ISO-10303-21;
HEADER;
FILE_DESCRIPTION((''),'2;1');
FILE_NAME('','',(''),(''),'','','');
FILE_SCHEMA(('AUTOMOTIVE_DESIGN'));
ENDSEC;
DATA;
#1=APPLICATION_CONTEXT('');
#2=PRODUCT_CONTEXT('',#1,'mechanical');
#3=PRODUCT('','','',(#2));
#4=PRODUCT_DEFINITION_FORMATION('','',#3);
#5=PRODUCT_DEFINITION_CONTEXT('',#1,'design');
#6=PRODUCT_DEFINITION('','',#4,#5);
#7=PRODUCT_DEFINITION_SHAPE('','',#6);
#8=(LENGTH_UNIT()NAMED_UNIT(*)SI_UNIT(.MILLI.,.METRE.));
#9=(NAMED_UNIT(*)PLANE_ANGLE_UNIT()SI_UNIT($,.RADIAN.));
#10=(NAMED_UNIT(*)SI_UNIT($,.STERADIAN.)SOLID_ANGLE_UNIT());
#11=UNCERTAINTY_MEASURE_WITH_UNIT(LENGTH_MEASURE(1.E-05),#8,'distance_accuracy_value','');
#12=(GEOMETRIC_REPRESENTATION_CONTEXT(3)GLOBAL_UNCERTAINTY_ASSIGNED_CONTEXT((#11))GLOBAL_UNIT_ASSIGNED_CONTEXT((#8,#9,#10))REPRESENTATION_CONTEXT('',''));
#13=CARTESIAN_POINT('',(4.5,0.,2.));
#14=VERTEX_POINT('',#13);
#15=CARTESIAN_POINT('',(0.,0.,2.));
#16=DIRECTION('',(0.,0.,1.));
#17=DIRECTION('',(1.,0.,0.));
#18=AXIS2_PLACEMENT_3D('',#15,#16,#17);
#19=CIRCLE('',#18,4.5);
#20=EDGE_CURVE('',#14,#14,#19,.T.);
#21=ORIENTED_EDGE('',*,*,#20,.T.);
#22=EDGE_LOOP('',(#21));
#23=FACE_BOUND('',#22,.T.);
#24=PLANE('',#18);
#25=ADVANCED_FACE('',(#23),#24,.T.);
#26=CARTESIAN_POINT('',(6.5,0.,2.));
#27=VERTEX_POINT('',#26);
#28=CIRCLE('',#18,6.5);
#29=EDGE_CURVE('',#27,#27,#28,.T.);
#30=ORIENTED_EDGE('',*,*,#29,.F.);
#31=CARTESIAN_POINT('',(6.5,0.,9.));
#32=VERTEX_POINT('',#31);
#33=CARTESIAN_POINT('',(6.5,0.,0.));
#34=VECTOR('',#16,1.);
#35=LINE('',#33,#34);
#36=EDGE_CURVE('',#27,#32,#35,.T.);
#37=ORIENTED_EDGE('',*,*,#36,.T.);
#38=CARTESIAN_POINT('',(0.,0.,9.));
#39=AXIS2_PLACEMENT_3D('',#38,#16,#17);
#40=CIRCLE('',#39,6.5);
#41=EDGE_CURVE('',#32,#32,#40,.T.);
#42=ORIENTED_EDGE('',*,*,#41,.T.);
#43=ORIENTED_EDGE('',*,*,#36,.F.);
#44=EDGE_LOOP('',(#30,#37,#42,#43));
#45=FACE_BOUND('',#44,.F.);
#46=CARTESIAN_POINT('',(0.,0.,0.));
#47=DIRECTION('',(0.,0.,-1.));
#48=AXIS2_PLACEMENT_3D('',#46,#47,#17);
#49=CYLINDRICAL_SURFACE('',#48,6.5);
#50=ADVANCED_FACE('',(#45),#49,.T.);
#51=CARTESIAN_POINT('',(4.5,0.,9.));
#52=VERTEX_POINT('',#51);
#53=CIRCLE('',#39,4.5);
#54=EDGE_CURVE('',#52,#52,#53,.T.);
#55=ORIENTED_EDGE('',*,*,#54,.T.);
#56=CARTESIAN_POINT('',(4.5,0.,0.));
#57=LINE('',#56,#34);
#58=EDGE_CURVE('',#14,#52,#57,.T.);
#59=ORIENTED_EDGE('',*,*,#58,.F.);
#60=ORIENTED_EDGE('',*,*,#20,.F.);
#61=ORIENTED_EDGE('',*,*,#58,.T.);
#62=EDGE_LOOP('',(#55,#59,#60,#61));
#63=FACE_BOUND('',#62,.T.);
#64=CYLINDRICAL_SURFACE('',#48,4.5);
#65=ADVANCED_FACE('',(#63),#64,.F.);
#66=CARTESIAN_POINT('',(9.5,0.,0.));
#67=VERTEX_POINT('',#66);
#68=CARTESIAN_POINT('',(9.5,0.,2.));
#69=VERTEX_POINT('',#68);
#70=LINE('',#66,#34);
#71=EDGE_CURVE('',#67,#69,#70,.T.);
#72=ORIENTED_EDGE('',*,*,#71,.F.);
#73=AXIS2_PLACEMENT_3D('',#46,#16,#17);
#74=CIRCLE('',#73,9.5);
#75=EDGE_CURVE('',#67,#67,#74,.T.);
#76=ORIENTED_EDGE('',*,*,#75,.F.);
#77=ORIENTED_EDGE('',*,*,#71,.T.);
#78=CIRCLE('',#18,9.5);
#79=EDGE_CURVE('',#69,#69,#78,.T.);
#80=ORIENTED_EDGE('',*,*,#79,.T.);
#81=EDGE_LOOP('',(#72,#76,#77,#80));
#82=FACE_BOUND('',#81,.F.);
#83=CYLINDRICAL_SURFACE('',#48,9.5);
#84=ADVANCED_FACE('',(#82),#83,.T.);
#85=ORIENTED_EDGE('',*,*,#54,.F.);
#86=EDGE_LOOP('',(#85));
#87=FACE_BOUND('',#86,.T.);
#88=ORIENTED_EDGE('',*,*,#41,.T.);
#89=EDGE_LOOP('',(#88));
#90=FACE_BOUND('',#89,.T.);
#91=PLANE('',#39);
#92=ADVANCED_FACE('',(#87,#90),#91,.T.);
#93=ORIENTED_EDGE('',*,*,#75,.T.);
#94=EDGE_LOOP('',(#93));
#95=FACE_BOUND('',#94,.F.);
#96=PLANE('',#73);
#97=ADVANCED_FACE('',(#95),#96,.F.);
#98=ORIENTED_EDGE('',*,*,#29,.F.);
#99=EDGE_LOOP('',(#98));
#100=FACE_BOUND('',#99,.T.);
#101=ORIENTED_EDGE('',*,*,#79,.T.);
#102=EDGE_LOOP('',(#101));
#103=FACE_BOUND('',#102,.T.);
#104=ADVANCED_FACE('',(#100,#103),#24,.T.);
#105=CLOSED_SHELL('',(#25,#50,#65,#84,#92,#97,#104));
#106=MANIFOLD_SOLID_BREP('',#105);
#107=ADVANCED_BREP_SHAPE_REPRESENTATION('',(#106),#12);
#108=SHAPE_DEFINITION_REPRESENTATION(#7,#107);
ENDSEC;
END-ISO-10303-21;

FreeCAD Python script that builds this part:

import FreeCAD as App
import Part
import Sketcher
from FreeCAD import Vector

doc = App.newDocument("Part")
body = doc.addObject("PartDesign::Body", "Body")

# Sketch on XY plane
sketch1 = body.newObject("Sketcher::SketchObject", "Sketch")
sketch1.AttachmentSupport = (doc.getObject("XY_Plane"), [""])
sketch1.MapMode = "FlatFace"
sketch1.addGeometry(Part.Circle(Vector(0, 0, 0), Vector(0, 0, 1), 10), False)
sketch1.addGeometry(Part.Circle(Vector(0, 0, 0), Vector(0, 0, 1), 6), False)
sketch1.addConstraint(Sketcher.Constraint("Coincident", 0, 3, -1, 1))
sketch1.addConstraint(Sketcher.Constraint("Coincident", 1, 3, -1, 1))
sketch1.addConstraint(Sketcher.Constraint("Diameter", 0, 19.0))
sketch1.addConstraint(Sketcher.Constraint("Diameter", 1, 13.0))
pad1 = body.newObject("PartDesign::Pad", "Pad")
pad1.Profile = sketch1
pad1.Length = 2

# Sketch on XY plane
sketch2 = body.newObject("Sketcher::SketchObject", "Sketch001")
sketch2.AttachmentSupport = (doc.getObject("XY_Plane"), [""])
sketch2.MapMode = "FlatFace"
sketch2.addGeometry(Part.Circle(Vector(0, 0, 0), Vector(0, 0, 1), 6.5), False)
sketch2.addGeometry(Part.Circle(Vector(0, 0, 0), Vector(0, 0, 1), 4.5), False)
sketch2.addConstraint(Sketcher.Constraint("Coincident", 0, 3, -1, 1))
sketch2.addConstraint(Sketcher.Constraint("Coincident", 1, 3, -1, 1))
sketch2.addConstraint(Sketcher.Constraint("Diameter", 0, 13.0))
sketch2.addConstraint(Sketcher.Constraint("Diameter", 1, 9.0))
pad2 = body.newObject("PartDesign::Pad", "Pad001")
pad2.Profile = sketch2
pad2.Length = 9

# Sketch on XY plane
sketch3 = body.newObject("Sketcher::SketchObject", "Sketch002")
sketch3.AttachmentSupport = (doc.getObject("XY_Plane"), [""])
sketch3.MapMode = "FlatFace"
sketch3.addGeometry(Part.Circle(Vector(0, 0, 0), Vector(0, 0, 1), 4.5), False)
sketch3.addConstraint(Sketcher.Constraint("Coincident", 0, 3, -1, 1))
sketch3.addConstraint(Sketcher.Constraint("Diameter", 0, 9.0))
pad3 = body.newObject("PartDesign::Pad", "Pad002")
pad3.Profile = sketch3
pad3.Length = 2

doc.recompute()
